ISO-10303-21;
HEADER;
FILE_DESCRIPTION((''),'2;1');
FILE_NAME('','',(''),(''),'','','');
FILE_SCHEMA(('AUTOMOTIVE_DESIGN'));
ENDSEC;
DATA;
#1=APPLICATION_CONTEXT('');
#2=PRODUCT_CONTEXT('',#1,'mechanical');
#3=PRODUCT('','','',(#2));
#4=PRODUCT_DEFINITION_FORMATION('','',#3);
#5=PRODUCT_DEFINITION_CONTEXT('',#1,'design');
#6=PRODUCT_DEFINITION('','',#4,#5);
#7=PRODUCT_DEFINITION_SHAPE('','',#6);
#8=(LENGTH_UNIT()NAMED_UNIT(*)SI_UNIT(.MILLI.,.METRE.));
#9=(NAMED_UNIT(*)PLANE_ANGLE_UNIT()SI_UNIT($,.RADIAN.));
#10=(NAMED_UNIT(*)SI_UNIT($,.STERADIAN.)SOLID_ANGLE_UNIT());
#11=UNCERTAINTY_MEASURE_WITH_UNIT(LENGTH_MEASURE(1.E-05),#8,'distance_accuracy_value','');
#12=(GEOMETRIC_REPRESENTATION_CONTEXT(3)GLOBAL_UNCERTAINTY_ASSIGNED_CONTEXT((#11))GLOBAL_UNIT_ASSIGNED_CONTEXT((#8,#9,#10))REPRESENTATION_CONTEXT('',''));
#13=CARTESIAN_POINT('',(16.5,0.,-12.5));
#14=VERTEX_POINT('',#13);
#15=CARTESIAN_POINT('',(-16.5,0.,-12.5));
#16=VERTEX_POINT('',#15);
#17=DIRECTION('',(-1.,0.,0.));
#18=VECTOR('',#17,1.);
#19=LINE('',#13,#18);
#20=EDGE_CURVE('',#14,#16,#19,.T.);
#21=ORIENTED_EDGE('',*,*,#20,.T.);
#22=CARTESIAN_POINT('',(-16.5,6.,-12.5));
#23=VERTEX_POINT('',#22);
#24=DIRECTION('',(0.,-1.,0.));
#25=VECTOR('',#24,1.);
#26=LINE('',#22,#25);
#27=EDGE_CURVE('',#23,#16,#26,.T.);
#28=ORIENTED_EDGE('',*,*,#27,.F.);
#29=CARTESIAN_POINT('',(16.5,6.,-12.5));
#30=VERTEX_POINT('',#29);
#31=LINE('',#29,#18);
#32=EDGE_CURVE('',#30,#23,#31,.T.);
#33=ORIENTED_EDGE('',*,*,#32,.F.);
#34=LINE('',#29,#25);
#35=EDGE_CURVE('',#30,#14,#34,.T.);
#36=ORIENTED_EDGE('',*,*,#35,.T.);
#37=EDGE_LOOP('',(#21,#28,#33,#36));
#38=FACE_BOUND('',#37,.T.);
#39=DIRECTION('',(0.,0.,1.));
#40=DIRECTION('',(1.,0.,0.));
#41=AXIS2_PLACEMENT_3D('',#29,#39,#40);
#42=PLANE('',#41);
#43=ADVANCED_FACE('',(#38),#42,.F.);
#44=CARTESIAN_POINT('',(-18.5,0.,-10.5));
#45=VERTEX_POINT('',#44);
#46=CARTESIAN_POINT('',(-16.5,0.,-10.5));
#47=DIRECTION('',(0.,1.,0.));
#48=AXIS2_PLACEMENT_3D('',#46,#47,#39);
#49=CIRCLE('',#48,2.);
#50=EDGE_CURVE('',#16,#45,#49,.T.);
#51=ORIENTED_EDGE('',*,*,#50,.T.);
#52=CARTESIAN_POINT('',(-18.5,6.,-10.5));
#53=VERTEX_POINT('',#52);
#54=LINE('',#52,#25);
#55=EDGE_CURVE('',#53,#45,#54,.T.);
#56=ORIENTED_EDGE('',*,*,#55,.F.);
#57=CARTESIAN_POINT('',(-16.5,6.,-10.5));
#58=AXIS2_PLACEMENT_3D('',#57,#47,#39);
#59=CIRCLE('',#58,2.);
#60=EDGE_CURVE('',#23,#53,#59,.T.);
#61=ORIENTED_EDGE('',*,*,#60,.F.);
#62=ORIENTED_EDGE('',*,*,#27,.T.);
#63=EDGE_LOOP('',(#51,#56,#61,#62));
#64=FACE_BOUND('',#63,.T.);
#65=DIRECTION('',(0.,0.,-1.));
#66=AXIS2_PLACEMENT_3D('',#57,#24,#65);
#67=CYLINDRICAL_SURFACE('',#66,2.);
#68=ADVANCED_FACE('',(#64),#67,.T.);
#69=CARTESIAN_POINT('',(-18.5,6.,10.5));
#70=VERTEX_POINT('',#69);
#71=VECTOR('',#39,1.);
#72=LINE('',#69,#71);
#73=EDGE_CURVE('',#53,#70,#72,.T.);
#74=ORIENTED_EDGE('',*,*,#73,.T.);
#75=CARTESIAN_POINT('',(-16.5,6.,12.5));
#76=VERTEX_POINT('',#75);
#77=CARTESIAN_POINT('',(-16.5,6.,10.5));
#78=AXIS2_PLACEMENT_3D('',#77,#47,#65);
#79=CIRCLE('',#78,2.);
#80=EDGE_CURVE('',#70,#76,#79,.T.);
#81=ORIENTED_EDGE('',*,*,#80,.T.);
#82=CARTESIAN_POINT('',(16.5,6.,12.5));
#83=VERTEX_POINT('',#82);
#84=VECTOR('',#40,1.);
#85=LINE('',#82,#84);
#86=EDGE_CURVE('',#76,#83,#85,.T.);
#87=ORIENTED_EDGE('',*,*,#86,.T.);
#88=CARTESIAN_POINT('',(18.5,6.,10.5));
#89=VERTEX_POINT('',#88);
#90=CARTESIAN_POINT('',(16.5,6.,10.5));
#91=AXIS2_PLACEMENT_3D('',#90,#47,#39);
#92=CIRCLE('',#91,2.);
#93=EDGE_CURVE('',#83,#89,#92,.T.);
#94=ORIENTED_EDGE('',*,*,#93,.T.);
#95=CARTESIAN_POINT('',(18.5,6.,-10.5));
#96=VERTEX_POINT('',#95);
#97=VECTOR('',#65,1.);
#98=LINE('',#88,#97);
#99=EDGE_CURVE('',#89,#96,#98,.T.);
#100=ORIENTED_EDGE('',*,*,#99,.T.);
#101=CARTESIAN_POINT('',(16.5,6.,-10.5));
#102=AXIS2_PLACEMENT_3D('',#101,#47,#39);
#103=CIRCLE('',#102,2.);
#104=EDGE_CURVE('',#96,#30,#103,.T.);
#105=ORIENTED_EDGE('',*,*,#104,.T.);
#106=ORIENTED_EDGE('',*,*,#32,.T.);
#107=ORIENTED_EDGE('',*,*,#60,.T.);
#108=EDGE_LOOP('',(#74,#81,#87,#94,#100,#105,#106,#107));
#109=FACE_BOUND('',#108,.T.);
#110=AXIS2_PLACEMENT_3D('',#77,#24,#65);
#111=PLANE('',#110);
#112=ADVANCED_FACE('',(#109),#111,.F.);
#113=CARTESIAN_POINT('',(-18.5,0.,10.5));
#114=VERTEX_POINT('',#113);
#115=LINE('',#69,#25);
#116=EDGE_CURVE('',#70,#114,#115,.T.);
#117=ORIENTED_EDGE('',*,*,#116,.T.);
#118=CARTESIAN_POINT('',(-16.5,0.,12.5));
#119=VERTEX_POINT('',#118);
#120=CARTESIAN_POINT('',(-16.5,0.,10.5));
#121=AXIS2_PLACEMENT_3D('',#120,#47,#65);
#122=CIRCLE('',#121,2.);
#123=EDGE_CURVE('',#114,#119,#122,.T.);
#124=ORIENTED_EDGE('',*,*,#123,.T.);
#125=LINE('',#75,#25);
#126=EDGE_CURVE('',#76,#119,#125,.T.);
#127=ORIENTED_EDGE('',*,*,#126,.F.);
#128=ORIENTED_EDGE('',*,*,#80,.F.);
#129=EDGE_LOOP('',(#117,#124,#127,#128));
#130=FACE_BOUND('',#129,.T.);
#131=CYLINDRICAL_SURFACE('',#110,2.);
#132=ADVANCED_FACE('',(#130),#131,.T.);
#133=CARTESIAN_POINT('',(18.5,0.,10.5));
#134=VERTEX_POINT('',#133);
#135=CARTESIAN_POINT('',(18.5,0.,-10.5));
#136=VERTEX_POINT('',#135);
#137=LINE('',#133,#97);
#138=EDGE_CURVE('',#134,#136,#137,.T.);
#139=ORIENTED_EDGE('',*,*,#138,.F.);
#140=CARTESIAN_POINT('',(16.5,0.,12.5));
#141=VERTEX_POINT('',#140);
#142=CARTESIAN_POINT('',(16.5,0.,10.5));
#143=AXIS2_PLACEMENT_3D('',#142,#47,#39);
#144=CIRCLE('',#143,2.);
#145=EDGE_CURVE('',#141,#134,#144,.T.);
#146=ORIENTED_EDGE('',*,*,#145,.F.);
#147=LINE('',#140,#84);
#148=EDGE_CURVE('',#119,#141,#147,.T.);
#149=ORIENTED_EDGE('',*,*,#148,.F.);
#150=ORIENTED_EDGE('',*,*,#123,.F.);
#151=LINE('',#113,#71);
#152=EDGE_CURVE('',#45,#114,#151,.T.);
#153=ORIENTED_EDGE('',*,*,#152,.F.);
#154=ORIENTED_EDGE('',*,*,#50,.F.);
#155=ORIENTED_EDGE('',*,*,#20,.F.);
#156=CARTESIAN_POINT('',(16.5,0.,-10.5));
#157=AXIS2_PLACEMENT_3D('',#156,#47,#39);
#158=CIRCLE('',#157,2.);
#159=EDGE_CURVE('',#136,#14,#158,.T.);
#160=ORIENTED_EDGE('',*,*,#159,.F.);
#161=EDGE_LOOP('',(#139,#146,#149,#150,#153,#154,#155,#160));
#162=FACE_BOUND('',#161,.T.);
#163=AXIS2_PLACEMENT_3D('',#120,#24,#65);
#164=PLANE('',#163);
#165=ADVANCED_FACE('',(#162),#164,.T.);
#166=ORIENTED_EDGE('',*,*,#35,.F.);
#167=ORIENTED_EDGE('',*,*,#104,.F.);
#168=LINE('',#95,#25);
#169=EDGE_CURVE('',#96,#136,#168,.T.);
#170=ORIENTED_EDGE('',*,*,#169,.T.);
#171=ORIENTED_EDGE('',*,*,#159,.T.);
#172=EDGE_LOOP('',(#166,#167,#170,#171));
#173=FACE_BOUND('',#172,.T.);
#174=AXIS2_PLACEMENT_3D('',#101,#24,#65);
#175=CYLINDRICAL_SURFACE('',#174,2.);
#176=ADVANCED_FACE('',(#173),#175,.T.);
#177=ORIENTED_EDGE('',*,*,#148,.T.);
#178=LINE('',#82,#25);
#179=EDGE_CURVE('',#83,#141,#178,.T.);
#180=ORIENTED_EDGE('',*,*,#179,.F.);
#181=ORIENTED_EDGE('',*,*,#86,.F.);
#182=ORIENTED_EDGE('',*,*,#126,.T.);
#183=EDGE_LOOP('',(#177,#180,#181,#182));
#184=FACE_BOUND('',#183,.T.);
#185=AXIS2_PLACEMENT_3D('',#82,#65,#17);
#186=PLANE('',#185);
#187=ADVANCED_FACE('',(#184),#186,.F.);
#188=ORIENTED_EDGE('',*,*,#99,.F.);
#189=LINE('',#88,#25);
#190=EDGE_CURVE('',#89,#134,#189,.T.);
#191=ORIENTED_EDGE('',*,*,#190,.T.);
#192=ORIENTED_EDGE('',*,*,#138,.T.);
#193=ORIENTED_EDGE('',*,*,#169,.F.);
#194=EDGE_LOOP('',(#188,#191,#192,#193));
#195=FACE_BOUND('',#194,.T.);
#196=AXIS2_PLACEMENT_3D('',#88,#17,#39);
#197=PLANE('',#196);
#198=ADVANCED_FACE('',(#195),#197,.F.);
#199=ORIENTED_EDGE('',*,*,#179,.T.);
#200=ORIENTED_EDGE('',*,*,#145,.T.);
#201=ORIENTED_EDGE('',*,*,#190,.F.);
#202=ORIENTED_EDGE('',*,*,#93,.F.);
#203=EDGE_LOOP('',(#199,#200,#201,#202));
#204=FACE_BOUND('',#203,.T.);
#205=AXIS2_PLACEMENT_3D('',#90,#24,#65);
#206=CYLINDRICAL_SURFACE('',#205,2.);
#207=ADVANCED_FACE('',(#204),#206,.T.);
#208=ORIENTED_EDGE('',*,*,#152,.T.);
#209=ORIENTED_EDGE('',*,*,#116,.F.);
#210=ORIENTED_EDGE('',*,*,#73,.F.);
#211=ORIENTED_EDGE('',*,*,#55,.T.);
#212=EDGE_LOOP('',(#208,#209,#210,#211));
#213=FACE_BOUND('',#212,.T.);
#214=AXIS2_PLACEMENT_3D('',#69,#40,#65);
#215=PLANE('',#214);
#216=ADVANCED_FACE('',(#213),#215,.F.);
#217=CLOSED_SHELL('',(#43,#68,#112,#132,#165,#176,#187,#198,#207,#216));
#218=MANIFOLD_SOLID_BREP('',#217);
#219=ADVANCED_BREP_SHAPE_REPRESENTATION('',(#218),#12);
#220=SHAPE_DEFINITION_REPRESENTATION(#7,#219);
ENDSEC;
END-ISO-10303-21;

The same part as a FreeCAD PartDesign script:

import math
import FreeCAD as App
import Part
import Sketcher
from FreeCAD import Vector

doc = App.newDocument("Part")
body = doc.addObject("PartDesign::Body", "Body")

# Sketch on XZ plane
sketch1 = body.newObject("Sketcher::SketchObject", "Sketch")
sketch1.AttachmentSupport = (doc.getObject("XZ_Plane"), [""])
sketch1.MapMode = "FlatFace"
sketch1.addGeometry(Part.LineSegment(Vector(-16.5, 12.5, 0), Vector(16.5, 12.5, 0)), False)
sketch1.addGeometry(Part.ArcOfCircle(Part.Circle(Vector(16.5, 10.5, 0), Vector(0, 0, 1), 2), math.radians(0), math.radians(90)), False)
sketch1.addGeometry(Part.LineSegment(Vector(18.5, 10.5, 0), Vector(18.5, -10.5, 0)), False)
sketch1.addGeometry(Part.ArcOfCircle(Part.Circle(Vector(16.5, -10.5, 0), Vector(0, 0, 1), 2), math.radians(-90), math.radians(0)), False)
sketch1.addGeometry(Part.LineSegment(Vector(16.5, -12.5, 0), Vector(-16.5, -12.5, 0)), False)
sketch1.addGeometry(Part.ArcOfCircle(Part.Circle(Vector(-16.5, -10.5, 0), Vector(0, 0, 1), 2), math.radians(-180), math.radians(-90)), False)
sketch1.addGeometry(Part.LineSegment(Vector(-18.5, -10.5, 0), Vector(-18.5, 10.5, 0)), False)
sketch1.addGeometry(Part.ArcOfCircle(Part.Circle(Vector(-16.5, 10.5, 0), Vector(0, 0, 1), 2), math.radians(90), math.radians(180)), False)
sketch1.addConstraint(Sketcher.Constraint("Tangent", 0, 2, 1, 2))
sketch1.addConstraint(Sketcher.Constraint("Tangent", 1, 1, 2, 1))
sketch1.addConstraint(Sketcher.Constraint("Tangent", 2, 2, 3, 2))
sketch1.addConstraint(Sketcher.Constraint("Tangent", 3, 1, 4, 1))
sketch1.addConstraint(Sketcher.Constraint("Tangent", 4, 2, 5, 2))
sketch1.addConstraint(Sketcher.Constraint("Tangent", 5, 1, 6, 1))
sketch1.addConstraint(Sketcher.Constraint("Tangent", 6, 2, 7, 2))
sketch1.addConstraint(Sketcher.Constraint("Tangent", 7, 1, 0, 1))
sketch1.addConstraint(Sketcher.Constraint("Horizontal", 0))
sketch1.addConstraint(Sketcher.Constraint("Vertical", 2))
sketch1.addConstraint(Sketcher.Constraint("Horizontal", 4))
sketch1.addConstraint(Sketcher.Constraint("Vertical", 6))
sketch1.addConstraint(Sketcher.Constraint("Equal", 1, 3))
sketch1.addConstraint(Sketcher.Constraint("Equal", 3, 5))
sketch1.addConstraint(Sketcher.Constraint("Equal", 5, 7))
sketch1.addConstraint(Sketcher.Constraint("Symmetric", 1, 3, 5, 3, -1, 1))
sketch1.addConstraint(Sketcher.Constraint("Radius", 1, 2.0))
sketch1.addConstraint(Sketcher.Constraint("DistanceX", 0, 1, 0, 2, 33.0))
sketch1.addConstraint(Sketcher.Constraint("DistanceY", 2, 2, 2, 1, 21.0))
pad1 = body.newObject("PartDesign::Pad", "Pad")
pad1.Profile = sketch1
pad1.Length = 6
pad1.Reversed = True

doc.recompute()
